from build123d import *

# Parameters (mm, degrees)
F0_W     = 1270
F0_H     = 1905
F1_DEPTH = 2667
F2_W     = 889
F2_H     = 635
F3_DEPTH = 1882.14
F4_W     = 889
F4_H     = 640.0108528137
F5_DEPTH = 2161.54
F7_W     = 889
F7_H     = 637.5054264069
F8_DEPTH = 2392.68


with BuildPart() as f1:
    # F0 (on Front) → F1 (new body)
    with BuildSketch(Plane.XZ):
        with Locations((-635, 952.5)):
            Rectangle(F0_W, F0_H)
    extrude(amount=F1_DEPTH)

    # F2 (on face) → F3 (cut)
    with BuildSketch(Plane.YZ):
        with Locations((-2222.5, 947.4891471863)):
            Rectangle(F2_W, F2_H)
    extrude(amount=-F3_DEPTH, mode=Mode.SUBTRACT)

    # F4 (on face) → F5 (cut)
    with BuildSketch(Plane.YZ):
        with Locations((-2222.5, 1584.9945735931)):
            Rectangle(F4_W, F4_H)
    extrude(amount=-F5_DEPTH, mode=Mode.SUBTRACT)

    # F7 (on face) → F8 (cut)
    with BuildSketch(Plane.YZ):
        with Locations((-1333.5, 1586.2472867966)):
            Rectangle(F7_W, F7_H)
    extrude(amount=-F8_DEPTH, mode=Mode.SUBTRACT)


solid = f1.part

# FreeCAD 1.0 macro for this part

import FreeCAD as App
import Part
import Sketcher
Q = App.Units.Quantity

doc = App.newDocument("Part")
body = doc.addObject("PartDesign::Body", "Body")

# Sketch on XZ plane
sketch1 = body.newObject("Sketcher::SketchObject", "Sketch")
sketch1.AttachmentSupport = (doc.getObject("XZ_Plane"), [""])
sketch1.MapMode = "FlatFace"
sketch1.addGeometry([
    Part.LineSegment(App.Vector(-1270, 1905, 0), App.Vector(-1270, 0, 0)),
    Part.LineSegment(App.Vector(-1270, 0, 0), App.Vector(0, 0, 0)),
    Part.LineSegment(App.Vector(0, 0, 0), App.Vector(0, 1905, 0)),
    Part.LineSegment(App.Vector(0, 1905, 0), App.Vector(-1270, 1905, 0)),
], False)
sketch1.addConstraint([
    Sketcher.Constraint("Coincident", 0, 2, 1, 1),
    Sketcher.Constraint("Coincident", 1, 2, 2, 1),
    Sketcher.Constraint("Coincident", 2, 2, 3, 1),
    Sketcher.Constraint("Coincident", 3, 2, 0, 1),
    Sketcher.Constraint("Vertical", 0),
    Sketcher.Constraint("Horizontal", 1),
    Sketcher.Constraint("Vertical", 2),
    Sketcher.Constraint("Horizontal", 3),
    Sketcher.Constraint("Coincident", 1, 2, -1, 1),
    Sketcher.Constraint("DistanceX", 1, 1, 1, 2, Q("50 in")),
    Sketcher.Constraint("DistanceY", 0, 2, 0, 1, Q("75 in")),
])
pad1 = body.newObject("PartDesign::Pad", "Pad")
pad1.Profile = sketch1
pad1.Length = Q("105 in")

# Sketch on YZ plane
sketch2 = body.newObject("Sketcher::SketchObject", "Sketch001")
sketch2.AttachmentSupport = (doc.getObject("YZ_Plane"), [""])
sketch2.MapMode = "FlatFace"
sketch2.addGeometry([
    Part.LineSegment(App.Vector(-2667, 1265, 0), App.Vector(-2667, 630, 0)),
    Part.LineSegment(App.Vector(-2667, 630, 0), App.Vector(-1778, 630, 0)),
    Part.LineSegment(App.Vector(-1778, 630, 0), App.Vector(-1778, 1265, 0)),
    Part.LineSegment(App.Vector(-1778, 1265, 0), App.Vector(-2667, 1265, 0)),
], False)
sketch2.addConstraint([
    Sketcher.Constraint("Coincident", 0, 2, 1, 1),
    Sketcher.Constraint("Coincident", 1, 2, 2, 1),
    Sketcher.Constraint("Coincident", 2, 2, 3, 1),
    Sketcher.Constraint("Coincident", 3, 2, 0, 1),
    Sketcher.Constraint("Vertical", 0),
    Sketcher.Constraint("Horizontal", 1),
    Sketcher.Constraint("Vertical", 2),
    Sketcher.Constraint("Horizontal", 3),
    Sketcher.Constraint("DistanceX", 1, 1, 1, 2, Q("35 in")),
    Sketcher.Constraint("DistanceY", 0, 2, 0, 1, Q("25 in")),
    Sketcher.Constraint("DistanceX", 0, 2, -1, 1, Q("105 in")),
    Sketcher.Constraint("DistanceY", -1, 1, 0, 2, 629.989147),
])
pocket1 = body.newObject("PartDesign::Pocket", "Pocket")
pocket1.Profile = sketch2
pocket1.Length = Q("74.1 in")

# Sketch on YZ plane
sketch3 = body.newObject("Sketcher::SketchObject", "Sketch002")
sketch3.AttachmentSupport = (doc.getObject("YZ_Plane"), [""])
sketch3.MapMode = "FlatFace"
sketch3.addGeometry([
    Part.LineSegment(App.Vector(-2667, 1905, 0), App.Vector(-2667, 1265, 0)),
    Part.LineSegment(App.Vector(-2667, 1265, 0), App.Vector(-1778, 1265, 0)),
    Part.LineSegment(App.Vector(-1778, 1265, 0), App.Vector(-1778, 1905, 0)),
    Part.LineSegment(App.Vector(-1778, 1905, 0), App.Vector(-2667, 1905, 0)),
], False)
sketch3.addConstraint([
    Sketcher.Constraint("Coincident", 0, 2, 1, 1),
    Sketcher.Constraint("Coincident", 1, 2, 2, 1),
    Sketcher.Constraint("Coincident", 2, 2, 3, 1),
    Sketcher.Constraint("Coincident", 3, 2, 0, 1),
    Sketcher.Constraint("Vertical", 0),
    Sketcher.Constraint("Horizontal", 1),
    Sketcher.Constraint("Vertical", 2),
    Sketcher.Constraint("Horizontal", 3),
    Sketcher.Constraint("DistanceX", 1, 1, 1, 2, Q("35 in")),
    Sketcher.Constraint("DistanceX", 0, 2, -1, 1, Q("105 in")),
    Sketcher.Constraint("DistanceY", -1, 1, 2, 2, Q("75 in")),
    Sketcher.Constraint("DistanceY", 0, 2, 0, 1, 640.010853),
])
pocket2 = body.newObject("PartDesign::Pocket", "Pocket001")
pocket2.Profile = sketch3
pocket2.Length = Q("85.1 in")

# Sketch on YZ plane
sketch4 = body.newObject("Sketcher::SketchObject", "Sketch003")
sketch4.AttachmentSupport = (doc.getObject("YZ_Plane"), [""])
sketch4.MapMode = "FlatFace"
sketch4.addGeometry([
    Part.LineSegment(App.Vector(-1778, 1905, 0), App.Vector(-1778, 1267, 0)),
    Part.LineSegment(App.Vector(-1778, 1267, 0), App.Vector(-889, 1267, 0)),
    Part.LineSegment(App.Vector(-889, 1267, 0), App.Vector(-889, 1905, 0)),
    Part.LineSegment(App.Vector(-889, 1905, 0), App.Vector(-1778, 1905, 0)),
], False)
sketch4.addConstraint([
    Sketcher.Constraint("Coincident", 0, 2, 1, 1),
    Sketcher.Constraint("Coincident", 1, 2, 2, 1),
    Sketcher.Constraint("Coincident", 2, 2, 3, 1),
    Sketcher.Constraint("Coincident", 3, 2, 0, 1),
    Sketcher.Constraint("Vertical", 0),
    Sketcher.Constraint("Horizontal", 1),
    Sketcher.Constraint("Vertical", 2),
    Sketcher.Constraint("Horizontal", 3),
    Sketcher.Constraint("DistanceX", 1, 1, 1, 2, Q("35 in")),
    Sketcher.Constraint("DistanceX", 0, 2, -1, 1, Q("70 in")),
    Sketcher.Constraint("DistanceY", -1, 1, 2, 2, Q("75 in")),
    Sketcher.Constraint("DistanceY", 0, 2, 0, 1, 637.505426),
])
pocket3 = body.newObject("PartDesign::Pocket", "Pocket002")
pocket3.Profile = sketch4
pocket3.Length = Q("94.2 in")

doc.recompute()
